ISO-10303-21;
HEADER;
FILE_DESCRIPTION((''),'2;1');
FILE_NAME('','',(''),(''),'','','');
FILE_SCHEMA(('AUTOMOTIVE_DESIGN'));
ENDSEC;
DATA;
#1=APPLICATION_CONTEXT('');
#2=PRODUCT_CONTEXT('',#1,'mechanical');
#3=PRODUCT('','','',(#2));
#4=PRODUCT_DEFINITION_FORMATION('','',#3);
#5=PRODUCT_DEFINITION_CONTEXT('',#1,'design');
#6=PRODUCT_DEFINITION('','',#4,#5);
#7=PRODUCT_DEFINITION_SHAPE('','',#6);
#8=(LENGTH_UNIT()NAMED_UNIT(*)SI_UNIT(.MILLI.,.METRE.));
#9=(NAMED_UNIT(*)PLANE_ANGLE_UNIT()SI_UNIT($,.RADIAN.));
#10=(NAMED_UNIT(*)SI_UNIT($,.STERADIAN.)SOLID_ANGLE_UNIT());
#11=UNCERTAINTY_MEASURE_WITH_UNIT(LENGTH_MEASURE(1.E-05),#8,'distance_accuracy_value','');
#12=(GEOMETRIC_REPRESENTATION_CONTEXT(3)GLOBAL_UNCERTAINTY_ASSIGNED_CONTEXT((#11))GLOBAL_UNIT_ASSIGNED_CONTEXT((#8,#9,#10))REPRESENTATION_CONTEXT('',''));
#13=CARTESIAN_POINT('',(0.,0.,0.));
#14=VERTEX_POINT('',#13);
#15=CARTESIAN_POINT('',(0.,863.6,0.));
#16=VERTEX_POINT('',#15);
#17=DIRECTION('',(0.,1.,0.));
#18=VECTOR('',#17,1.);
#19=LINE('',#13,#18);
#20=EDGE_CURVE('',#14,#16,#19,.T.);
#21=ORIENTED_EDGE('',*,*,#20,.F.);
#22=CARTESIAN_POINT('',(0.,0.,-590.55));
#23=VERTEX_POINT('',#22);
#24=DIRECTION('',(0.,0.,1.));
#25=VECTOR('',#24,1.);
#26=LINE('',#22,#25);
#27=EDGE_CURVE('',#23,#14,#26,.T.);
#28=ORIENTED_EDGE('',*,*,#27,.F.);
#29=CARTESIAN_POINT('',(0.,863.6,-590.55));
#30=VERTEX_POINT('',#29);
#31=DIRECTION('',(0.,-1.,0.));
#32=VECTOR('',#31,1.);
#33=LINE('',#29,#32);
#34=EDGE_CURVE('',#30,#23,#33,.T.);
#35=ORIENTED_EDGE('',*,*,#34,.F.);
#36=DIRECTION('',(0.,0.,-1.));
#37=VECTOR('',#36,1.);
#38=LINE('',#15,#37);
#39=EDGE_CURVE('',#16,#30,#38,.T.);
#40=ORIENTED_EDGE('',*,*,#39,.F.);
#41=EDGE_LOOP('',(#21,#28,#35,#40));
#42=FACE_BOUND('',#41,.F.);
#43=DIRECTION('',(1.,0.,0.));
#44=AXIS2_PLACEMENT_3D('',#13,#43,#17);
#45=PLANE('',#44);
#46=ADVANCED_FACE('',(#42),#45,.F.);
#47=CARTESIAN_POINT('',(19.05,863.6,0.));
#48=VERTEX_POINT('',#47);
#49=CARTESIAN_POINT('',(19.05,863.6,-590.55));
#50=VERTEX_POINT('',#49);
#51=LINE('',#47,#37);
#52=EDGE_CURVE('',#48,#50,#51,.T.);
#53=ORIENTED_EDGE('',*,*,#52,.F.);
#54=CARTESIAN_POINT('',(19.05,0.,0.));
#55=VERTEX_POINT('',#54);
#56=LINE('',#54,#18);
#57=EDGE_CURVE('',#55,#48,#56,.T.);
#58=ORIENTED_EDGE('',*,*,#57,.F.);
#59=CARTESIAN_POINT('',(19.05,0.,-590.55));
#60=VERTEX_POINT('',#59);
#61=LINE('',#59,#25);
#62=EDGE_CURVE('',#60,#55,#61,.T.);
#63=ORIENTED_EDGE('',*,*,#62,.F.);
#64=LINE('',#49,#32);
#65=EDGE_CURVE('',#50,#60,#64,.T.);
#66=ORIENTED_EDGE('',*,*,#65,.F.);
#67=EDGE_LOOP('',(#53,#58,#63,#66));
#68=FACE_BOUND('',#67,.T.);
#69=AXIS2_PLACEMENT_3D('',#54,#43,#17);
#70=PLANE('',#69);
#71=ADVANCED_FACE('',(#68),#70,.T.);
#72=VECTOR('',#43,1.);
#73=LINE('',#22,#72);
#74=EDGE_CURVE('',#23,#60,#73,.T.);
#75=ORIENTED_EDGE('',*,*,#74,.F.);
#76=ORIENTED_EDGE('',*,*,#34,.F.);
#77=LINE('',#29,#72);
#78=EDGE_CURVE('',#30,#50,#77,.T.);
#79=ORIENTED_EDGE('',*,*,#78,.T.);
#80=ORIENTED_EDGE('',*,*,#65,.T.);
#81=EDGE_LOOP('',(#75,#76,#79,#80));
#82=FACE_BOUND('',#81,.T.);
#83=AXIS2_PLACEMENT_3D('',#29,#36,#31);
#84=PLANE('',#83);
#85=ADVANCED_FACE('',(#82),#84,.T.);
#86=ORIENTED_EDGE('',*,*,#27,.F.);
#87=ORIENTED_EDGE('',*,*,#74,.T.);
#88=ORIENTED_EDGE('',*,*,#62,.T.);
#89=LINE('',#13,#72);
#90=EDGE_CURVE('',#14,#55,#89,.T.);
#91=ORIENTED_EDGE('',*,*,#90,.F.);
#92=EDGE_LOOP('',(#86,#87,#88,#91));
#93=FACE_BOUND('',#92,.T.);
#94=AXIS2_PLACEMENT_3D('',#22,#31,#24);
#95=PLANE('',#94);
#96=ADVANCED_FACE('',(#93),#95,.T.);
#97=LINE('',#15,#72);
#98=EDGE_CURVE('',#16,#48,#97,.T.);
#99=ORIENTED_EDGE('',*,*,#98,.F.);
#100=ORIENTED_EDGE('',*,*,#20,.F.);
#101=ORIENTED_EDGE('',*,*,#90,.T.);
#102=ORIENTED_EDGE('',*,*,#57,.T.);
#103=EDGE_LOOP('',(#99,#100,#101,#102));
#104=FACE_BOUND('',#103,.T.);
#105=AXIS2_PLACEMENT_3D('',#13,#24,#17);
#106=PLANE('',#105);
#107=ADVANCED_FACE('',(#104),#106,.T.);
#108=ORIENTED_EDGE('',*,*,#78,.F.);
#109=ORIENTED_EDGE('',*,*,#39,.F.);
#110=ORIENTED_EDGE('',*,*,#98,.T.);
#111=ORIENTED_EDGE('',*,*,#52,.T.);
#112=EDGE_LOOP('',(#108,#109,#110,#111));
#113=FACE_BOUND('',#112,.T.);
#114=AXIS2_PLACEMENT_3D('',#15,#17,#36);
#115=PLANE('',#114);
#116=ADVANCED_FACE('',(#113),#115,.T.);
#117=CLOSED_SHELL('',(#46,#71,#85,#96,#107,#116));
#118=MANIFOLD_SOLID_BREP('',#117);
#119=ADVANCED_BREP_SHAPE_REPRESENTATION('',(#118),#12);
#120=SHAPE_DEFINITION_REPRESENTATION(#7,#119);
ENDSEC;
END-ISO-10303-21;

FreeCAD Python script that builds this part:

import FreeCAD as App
import Part
import Sketcher
Q = App.Units.Quantity

doc = App.newDocument("Part")
body = doc.addObject("PartDesign::Body", "Body")

sketch1 = doc.addObject("Sketcher::SketchObject", "Sketch")
body.addObject(sketch1)
sketch1.AttachmentSupport = (doc.YZ_Plane, [""])
sketch1.MapMode = "FlatFace"
sketch1.addGeometry(Part.LineSegment(App.Vector(864, 0, 0), App.Vector(0, 0, 0)), False)
sketch1.addGeometry(Part.LineSegment(App.Vector(0, 0, 0), App.Vector(0, -591, 0)), False)
sketch1.addGeometry(Part.LineSegment(App.Vector(0, -591, 0), App.Vector(864, -591, 0)), False)
sketch1.addGeometry(Part.LineSegment(App.Vector(864, -591, 0), App.Vector(864, 0, 0)), False)
sketch1.addConstraint(Sketcher.Constraint("Coincident", 0, 2, 1, 1))
sketch1.addConstraint(Sketcher.Constraint("Coincident", 1, 2, 2, 1))
sketch1.addConstraint(Sketcher.Constraint("Coincident", 2, 2, 3, 1))
sketch1.addConstraint(Sketcher.Constraint("Coincident", 3, 2, 0, 1))
sketch1.addConstraint(Sketcher.Constraint("Horizontal", 0))
sketch1.addConstraint(Sketcher.Constraint("Vertical", 1))
sketch1.addConstraint(Sketcher.Constraint("Horizontal", 2))
sketch1.addConstraint(Sketcher.Constraint("Vertical", 3))
sketch1.addConstraint(Sketcher.Constraint("Coincident", 0, 2, -1, 1))
sketch1.addConstraint(Sketcher.Constraint("DistanceX", 0, 2, 0, 1, Q("34 in")))
sketch1.addConstraint(Sketcher.Constraint("DistanceY", 1, 2, 1, 1, Q("23.25 in")))
pad1 = doc.addObject("PartDesign::Pad", "Pad")
body.addObject(pad1)
pad1.Profile = sketch1
pad1.Length = Q("0.75 in")

doc.recompute()
